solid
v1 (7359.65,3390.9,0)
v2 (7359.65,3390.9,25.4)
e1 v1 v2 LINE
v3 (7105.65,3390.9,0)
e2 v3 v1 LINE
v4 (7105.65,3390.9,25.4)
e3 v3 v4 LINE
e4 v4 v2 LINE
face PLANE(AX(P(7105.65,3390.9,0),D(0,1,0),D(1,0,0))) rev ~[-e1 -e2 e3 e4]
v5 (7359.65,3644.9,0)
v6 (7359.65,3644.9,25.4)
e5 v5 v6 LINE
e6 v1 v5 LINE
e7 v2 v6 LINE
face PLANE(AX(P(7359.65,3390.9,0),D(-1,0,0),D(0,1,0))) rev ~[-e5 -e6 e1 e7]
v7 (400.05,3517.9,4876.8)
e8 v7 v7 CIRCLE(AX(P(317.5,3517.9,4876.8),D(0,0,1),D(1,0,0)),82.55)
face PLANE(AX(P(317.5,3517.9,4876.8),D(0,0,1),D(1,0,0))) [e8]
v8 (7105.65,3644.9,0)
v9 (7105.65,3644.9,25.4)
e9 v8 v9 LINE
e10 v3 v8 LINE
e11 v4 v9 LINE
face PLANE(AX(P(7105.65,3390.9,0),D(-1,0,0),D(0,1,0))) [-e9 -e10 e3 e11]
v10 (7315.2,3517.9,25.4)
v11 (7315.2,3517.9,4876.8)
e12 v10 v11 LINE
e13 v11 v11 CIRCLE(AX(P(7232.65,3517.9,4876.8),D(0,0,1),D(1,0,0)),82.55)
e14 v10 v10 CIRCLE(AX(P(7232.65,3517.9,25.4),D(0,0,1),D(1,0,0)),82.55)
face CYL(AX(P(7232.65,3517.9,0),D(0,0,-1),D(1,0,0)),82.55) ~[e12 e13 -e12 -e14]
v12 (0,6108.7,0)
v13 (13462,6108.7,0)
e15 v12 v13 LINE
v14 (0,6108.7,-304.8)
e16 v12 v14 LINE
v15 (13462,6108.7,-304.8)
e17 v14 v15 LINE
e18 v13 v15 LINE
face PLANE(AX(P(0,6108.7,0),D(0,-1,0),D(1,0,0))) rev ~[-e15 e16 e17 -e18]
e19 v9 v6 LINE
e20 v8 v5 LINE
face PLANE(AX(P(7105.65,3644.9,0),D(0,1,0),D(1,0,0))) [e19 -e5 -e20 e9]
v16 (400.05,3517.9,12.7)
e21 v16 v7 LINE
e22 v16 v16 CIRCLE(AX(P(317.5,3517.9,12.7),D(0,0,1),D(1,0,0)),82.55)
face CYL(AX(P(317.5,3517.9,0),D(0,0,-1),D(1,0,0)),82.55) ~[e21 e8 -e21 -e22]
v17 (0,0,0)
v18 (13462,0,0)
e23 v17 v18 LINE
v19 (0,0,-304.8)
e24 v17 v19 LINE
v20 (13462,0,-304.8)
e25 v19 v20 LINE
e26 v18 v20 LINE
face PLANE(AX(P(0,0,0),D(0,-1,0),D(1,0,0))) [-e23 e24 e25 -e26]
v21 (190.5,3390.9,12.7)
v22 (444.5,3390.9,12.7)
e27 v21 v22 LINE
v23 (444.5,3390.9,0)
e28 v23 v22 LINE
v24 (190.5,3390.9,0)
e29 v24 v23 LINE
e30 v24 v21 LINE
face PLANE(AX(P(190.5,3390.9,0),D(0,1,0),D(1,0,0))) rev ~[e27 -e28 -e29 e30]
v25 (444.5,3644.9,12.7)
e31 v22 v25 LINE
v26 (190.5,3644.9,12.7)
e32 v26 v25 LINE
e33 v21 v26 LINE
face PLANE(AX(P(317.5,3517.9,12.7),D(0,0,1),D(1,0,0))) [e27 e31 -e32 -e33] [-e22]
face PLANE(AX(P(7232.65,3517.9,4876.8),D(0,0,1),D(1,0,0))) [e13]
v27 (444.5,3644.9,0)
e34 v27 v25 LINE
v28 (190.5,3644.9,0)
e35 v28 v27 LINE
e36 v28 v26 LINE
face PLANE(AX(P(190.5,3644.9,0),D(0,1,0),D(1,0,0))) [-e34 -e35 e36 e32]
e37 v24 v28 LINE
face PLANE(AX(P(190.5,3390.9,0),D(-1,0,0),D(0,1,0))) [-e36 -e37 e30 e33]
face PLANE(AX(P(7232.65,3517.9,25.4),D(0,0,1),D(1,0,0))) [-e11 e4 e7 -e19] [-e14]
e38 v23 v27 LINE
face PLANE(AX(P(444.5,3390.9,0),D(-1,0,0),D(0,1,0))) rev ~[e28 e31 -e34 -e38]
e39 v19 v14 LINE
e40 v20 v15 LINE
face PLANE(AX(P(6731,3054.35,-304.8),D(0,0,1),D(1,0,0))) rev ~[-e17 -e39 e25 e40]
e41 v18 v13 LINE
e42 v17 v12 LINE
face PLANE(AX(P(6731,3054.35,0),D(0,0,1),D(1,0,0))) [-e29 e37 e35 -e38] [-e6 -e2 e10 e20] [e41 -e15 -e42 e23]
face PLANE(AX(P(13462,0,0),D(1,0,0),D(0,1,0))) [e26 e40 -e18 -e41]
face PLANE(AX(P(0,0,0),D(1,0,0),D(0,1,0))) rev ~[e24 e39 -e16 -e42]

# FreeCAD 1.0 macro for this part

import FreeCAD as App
import Part
import Sketcher
Q = App.Units.Quantity

doc = App.newDocument("Part")
body = doc.addObject("PartDesign::Body", "Body")

# Sketch on XY plane
sketch1 = body.newObject("Sketcher::SketchObject", "Sketch")
sketch1.AttachmentSupport = (doc.getObject("XY_Plane"), [""])
sketch1.MapMode = "FlatFace"
sketch1.addGeometry([
    Part.LineSegment(App.Vector(0, 6109, 0), App.Vector(0, 0, 0)),
    Part.LineSegment(App.Vector(0, 0, 0), App.Vector(13462, 0, 0)),
    Part.LineSegment(App.Vector(13462, 0, 0), App.Vector(13462, 6109, 0)),
    Part.LineSegment(App.Vector(13462, 6109, 0), App.Vector(0, 6109, 0)),
], False)
sketch1.addConstraint([
    Sketcher.Constraint("Coincident", 0, 2, 1, 1),
    Sketcher.Constraint("Coincident", 1, 2, 2, 1),
    Sketcher.Constraint("Coincident", 2, 2, 3, 1),
    Sketcher.Constraint("Coincident", 3, 2, 0, 1),
    Sketcher.Constraint("Vertical", 0),
    Sketcher.Constraint("Horizontal", 1),
    Sketcher.Constraint("Vertical", 2),
    Sketcher.Constraint("Horizontal", 3),
    Sketcher.Constraint("Coincident", 0, 2, -1, 1),
    Sketcher.Constraint("DistanceX", 1, 1, 1, 2, Q("530 in")),
    Sketcher.Constraint("DistanceY", 0, 2, 0, 1, Q("240.5 in")),
])
pad1 = body.newObject("PartDesign::Pad", "Pad")
pad1.Profile = sketch1
pad1.Length = Q("12 in")
pad1.Reversed = True

# Sketch on XY plane
sketch2 = body.newObject("Sketcher::SketchObject", "Sketch001")
sketch2.AttachmentSupport = (doc.getObject("XY_Plane"), [""])
sketch2.MapMode = "FlatFace"
sketch2.addGeometry([
    Part.LineSegment(App.Vector(190, 3645, 0), App.Vector(190, 3391, 0)),  # 0
    Part.LineSegment(App.Vector(190, 3391, 0), App.Vector(444, 3391, 0)),  # 1
    Part.LineSegment(App.Vector(444, 3391, 0), App.Vector(444, 3645, 0)),  # 2
    Part.LineSegment(App.Vector(444, 3645, 0), App.Vector(190, 3645, 0)),  # 3
    Part.Circle(App.Vector(318, 3518, 0), App.Vector(0, 0, 1), 83),  # 4
], False)
sketch2.addConstraint([
    Sketcher.Constraint("Coincident", 0, 2, 1, 1),
    Sketcher.Constraint("Coincident", 1, 2, 2, 1),
    Sketcher.Constraint("Coincident", 2, 2, 3, 1),
    Sketcher.Constraint("Coincident", 3, 2, 0, 1),
    Sketcher.Constraint("Vertical", 0),
    Sketcher.Constraint("Horizontal", 1),
    Sketcher.Constraint("Vertical", 2),
    Sketcher.Constraint("Horizontal", 3),
    Sketcher.Constraint("Equal", 3, 0),
    Sketcher.Constraint("Diameter", 4, Q("6.5 in")),
    Sketcher.Constraint("DistanceX", 1, 1, 1, 2, Q("10 in")),
    Sketcher.Constraint("DistanceX", 0, 2, 4, 3, Q("5 in")),
    Sketcher.Constraint("DistanceY", 0, 2, 4, 3, Q("5 in")),
    Sketcher.Constraint("DistanceX", -1, 1, 4, 3, Q("12.5 in")),
    Sketcher.Constraint("DistanceY", -1, 1, 4, 3, Q("138.5 in")),
])
pad2 = body.newObject("PartDesign::Pad", "Pad001")
pad2.Profile = sketch2
pad2.Length = Q("0.5 in")

# Sketch on XY plane
sketch3 = body.newObject("Sketcher::SketchObject", "Sketch002")
sketch3.AttachmentSupport = (doc.getObject("XY_Plane"), [""])
sketch3.MapMode = "FlatFace"
sketch3.addGeometry([
    Part.LineSegment(App.Vector(7106, 3645, 0), App.Vector(7106, 3391, 0)),  # 0
    Part.LineSegment(App.Vector(7106, 3391, 0), App.Vector(7360, 3391, 0)),  # 1
    Part.LineSegment(App.Vector(7360, 3391, 0), App.Vector(7360, 3645, 0)),  # 2
    Part.LineSegment(App.Vector(7360, 3645, 0), App.Vector(7106, 3645, 0)),  # 3
    Part.Circle(App.Vector(7233, 3518, 0), App.Vector(0, 0, 1), 83),  # 4
], False)
sketch3.addConstraint([
    Sketcher.Constraint("Coincident", 0, 2, 1, 1),
    Sketcher.Constraint("Coincident", 1, 2, 2, 1),
    Sketcher.Constraint("Coincident", 2, 2, 3, 1),
    Sketcher.Constraint("Coincident", 3, 2, 0, 1),
    Sketcher.Constraint("Vertical", 0),
    Sketcher.Constraint("Horizontal", 1),
    Sketcher.Constraint("Vertical", 2),
    Sketcher.Constraint("Horizontal", 3),
    Sketcher.Constraint("Equal", 3, 0),
    Sketcher.Constraint("Diameter", 4, Q("6.5 in")),
    Sketcher.Constraint("DistanceX", 1, 1, 1, 2, Q("10 in")),
    Sketcher.Constraint("DistanceX", 0, 2, 4, 3, Q("5 in")),
    Sketcher.Constraint("DistanceY", 0, 2, 4, 3, Q("5 in")),
    Sketcher.Constraint("DistanceY", -1, 1, 4, 3, Q("138.5 in")),
    Sketcher.Constraint("DistanceX", -1, 1, 4, 3, Q("284.75 in")),
])
pad3 = body.newObject("PartDesign::Pad", "Pad002")
pad3.Profile = sketch3
pad3.Length = Q("1 in")

# Sketch on XY plane
sketch4 = body.newObject("Sketcher::SketchObject", "Sketch003")
sketch4.AttachmentSupport = (doc.getObject("XY_Plane"), [""])
sketch4.MapMode = "FlatFace"
sketch4.addGeometry(Part.Circle(App.Vector(318, 3518, 0), App.Vector(0, 0, 1), 83), False)
sketch4.addConstraint([
    Sketcher.Constraint("Diameter", 0, Q("6.5 in")),
    Sketcher.Constraint("DistanceX", -1, 1, 0, 3, Q("12.5 in")),
    Sketcher.Constraint("DistanceY", -1, 1, 0, 3, Q("138.5 in")),
])
pad4 = body.newObject("PartDesign::Pad", "Pad003")
pad4.Profile = sketch4
pad4.Length = Q("192 in")

# Sketch on XY plane
sketch5 = body.newObject("Sketcher::SketchObject", "Sketch004")
sketch5.AttachmentSupport = (doc.getObject("XY_Plane"), [""])
sketch5.MapMode = "FlatFace"
sketch5.addGeometry(Part.Circle(App.Vector(7233, 3518, 0), App.Vector(0, 0, 1), 83), False)
sketch5.addConstraint([
    Sketcher.Constraint("Diameter", 0, Q("6.5 in")),
    Sketcher.Constraint("DistanceY", -1, 1, 0, 3, Q("138.5 in")),
    Sketcher.Constraint("DistanceX", -1, 1, 0, 3, Q("284.75 in")),
])
pad5 = body.newObject("PartDesign::Pad", "Pad004")
pad5.Profile = sketch5
pad5.Length = Q("192 in")

doc.recompute()
